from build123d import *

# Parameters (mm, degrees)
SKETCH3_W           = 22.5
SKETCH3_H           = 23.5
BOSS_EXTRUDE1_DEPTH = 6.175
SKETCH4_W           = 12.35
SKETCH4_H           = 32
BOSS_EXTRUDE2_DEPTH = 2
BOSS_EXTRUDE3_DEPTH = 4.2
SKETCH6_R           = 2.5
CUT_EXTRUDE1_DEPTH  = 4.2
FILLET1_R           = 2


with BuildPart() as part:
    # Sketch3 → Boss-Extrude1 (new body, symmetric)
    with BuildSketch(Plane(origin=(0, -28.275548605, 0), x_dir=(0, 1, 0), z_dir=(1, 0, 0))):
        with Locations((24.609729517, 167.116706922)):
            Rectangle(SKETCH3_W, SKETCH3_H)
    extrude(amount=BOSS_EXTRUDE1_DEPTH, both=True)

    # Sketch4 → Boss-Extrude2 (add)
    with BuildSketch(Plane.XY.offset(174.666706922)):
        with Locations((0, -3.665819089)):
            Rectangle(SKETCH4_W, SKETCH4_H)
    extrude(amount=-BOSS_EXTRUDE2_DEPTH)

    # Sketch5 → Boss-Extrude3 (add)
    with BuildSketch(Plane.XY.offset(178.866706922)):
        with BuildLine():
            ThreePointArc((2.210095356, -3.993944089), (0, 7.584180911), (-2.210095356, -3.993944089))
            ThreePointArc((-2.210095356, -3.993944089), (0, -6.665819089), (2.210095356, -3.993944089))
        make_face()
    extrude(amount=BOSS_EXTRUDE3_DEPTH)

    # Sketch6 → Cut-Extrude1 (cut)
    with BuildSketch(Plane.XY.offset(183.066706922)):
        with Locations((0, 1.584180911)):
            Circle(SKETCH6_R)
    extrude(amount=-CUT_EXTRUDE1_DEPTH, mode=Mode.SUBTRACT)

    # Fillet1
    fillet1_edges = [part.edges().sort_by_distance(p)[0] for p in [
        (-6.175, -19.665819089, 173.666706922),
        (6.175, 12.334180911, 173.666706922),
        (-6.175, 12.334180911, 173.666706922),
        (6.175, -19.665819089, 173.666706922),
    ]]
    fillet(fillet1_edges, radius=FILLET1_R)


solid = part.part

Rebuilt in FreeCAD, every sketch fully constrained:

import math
import FreeCAD as App
import Part
import Sketcher
Q = App.Units.Quantity


def edges_at(feature, points):
    """Names of the edges that pass closest to the given points."""
    edges = feature.Shape.Edges
    near = lambda p: min(range(len(edges)), key=lambda i: edges[i].distToShape(Part.Vertex(*p))[0])
    return sorted({f"Edge{near(p) + 1}" for p in points})


def add_polygon(sketch, points):
    """Adds a closed chain of lines whose ends are joined by coincident constraints."""
    first, n = sketch.GeometryCount, len(points)
    for a, b in zip(points, points[1:] + points[:1]):
        sketch.addGeometry(Part.LineSegment(App.Vector(*a, 0), App.Vector(*b, 0)), False)
    for i in range(n):
        sketch.addConstraint(Sketcher.Constraint("Coincident", first + i, 2, first + (i + 1) % n, 1))

doc = App.newDocument("Part")
body = doc.addObject("PartDesign::Body", "Body")

sketch1 = body.newObject("Sketcher::SketchObject", "Sketch")
sketch1.AttachmentSupport = (doc.getObject("YZ_Plane"), [""])
sketch1.MapMode = "FlatFace"
add_polygon(sketch1, [(-14.915819, 178.866707), (-14.915819, 155.366707), (7.584181, 155.366707), (7.584181, 178.866707)])
sketch1.addConstraint(Sketcher.Constraint("Vertical", 0))
sketch1.addConstraint(Sketcher.Constraint("Horizontal", 1))
sketch1.addConstraint(Sketcher.Constraint("Vertical", 2))
sketch1.addConstraint(Sketcher.Constraint("Horizontal", 3))
sketch1.addConstraint(Sketcher.Constraint("DistanceX", 1, 1, 1, 2, Q("22.5 mm")))
sketch1.addConstraint(Sketcher.Constraint("DistanceY", 0, 2, 0, 1, Q("23.5 mm")))
sketch1.addConstraint(Sketcher.Constraint("DistanceX", 0, 2, -1, 1, Q("14.915819 mm")))
sketch1.addConstraint(Sketcher.Constraint("DistanceY", -1, 1, 0, 2, Q("155.366707 mm")))
pad1 = body.newObject("PartDesign::Pad", "Pad")
pad1.Profile = sketch1
pad1.Length = 12.35
pad1.Midplane = True

sketch2 = body.newObject("Sketcher::SketchObject", "Sketch001")
sketch2.AttachmentSupport = (doc.getObject("XY_Plane"), [""])
sketch2.MapMode = "FlatFace"
sketch2.AttachmentOffset = App.Placement(App.Vector(0, 0, 174.666707), App.Rotation())
add_polygon(sketch2, [(-6.175, 12.334181), (-6.175, -19.665819), (6.175, -19.665819), (6.175, 12.334181)])
sketch2.addConstraint(Sketcher.Constraint("Vertical", 0))
sketch2.addConstraint(Sketcher.Constraint("Horizontal", 1))
sketch2.addConstraint(Sketcher.Constraint("Vertical", 2))
sketch2.addConstraint(Sketcher.Constraint("Horizontal", 3))
sketch2.addConstraint(Sketcher.Constraint("DistanceY", 0, 2, 0, 1, Q("32 mm")))
sketch2.addConstraint(Sketcher.Constraint("DistanceX", 1, 1, 1, 2, Q("12.35 mm")))
sketch2.addConstraint(Sketcher.Constraint("DistanceX", 0, 2, -1, 1, Q("6.175 mm")))
sketch2.addConstraint(Sketcher.Constraint("DistanceY", 0, 2, -1, 1, Q("19.665819 mm")))
pad2 = body.newObject("PartDesign::Pad", "Pad001")
pad2.Profile = sketch2
pad2.Length = 2
pad2.Reversed = True

sketch3 = body.newObject("Sketcher::SketchObject", "Sketch002")
sketch3.AttachmentSupport = (doc.getObject("XY_Plane"), [""])
sketch3.MapMode = "FlatFace"
sketch3.AttachmentOffset = App.Placement(App.Vector(0, 0, 178.866707), App.Rotation())
sketch3.addGeometry(Part.ArcOfCircle(Part.Circle(App.Vector(0, 1.584181, 0), App.Vector(0, 0, 1), 6), math.radians(-68.386154), math.radians(248.386154)), False)
sketch3.addGeometry(Part.ArcOfCircle(Part.Circle(App.Vector(0, -4.415819, 0), App.Vector(0, 0, 1), 2.25), math.radians(169.193077), math.radians(370.806923)), False)
sketch3.addConstraint(Sketcher.Constraint("Coincident", 0, 1, 1, 2))
sketch3.addConstraint(Sketcher.Constraint("Coincident", 1, 1, 0, 2))
sketch3.addConstraint(Sketcher.Constraint("Symmetric", 0, 1, 1, 1, -2))
sketch3.addConstraint(Sketcher.Constraint("Radius", 0, Q("6 mm")))
sketch3.addConstraint(Sketcher.Constraint("Radius", 1, Q("2.25 mm")))
sketch3.addConstraint(Sketcher.Constraint("DistanceY", 1, 3, 0, 3, Q("6 mm")))
sketch3.addConstraint(Sketcher.Constraint("DistanceY", -1, 1, 0, 3, Q("1.584181 mm")))
pad3 = body.newObject("PartDesign::Pad", "Pad002")
pad3.Profile = sketch3
pad3.Length = 4.2

sketch4 = body.newObject("Sketcher::SketchObject", "Sketch003")
sketch4.AttachmentSupport = (doc.getObject("XY_Plane"), [""])
sketch4.MapMode = "FlatFace"
sketch4.AttachmentOffset = App.Placement(App.Vector(0, 0, 183.066707), App.Rotation())
sketch4.addGeometry(Part.Circle(App.Vector(0, 1.584181, 0), App.Vector(0, 0, 1), 2.5), False)
sketch4.addConstraint(Sketcher.Constraint("PointOnObject", 0, 3, -2))
sketch4.addConstraint(Sketcher.Constraint("Diameter", 0, Q("5 mm")))
sketch4.addConstraint(Sketcher.Constraint("DistanceY", -1, 1, 0, 3, Q("1.584181 mm")))
pocket1 = body.newObject("PartDesign::Pocket", "Pocket")
pocket1.Profile = sketch4
pocket1.Length = 4.2
doc.recompute()

fillet = body.newObject("PartDesign::Fillet", "Fillet")
fillet.Base = (pocket1, edges_at(pocket1, [
    (-6.175, -19.666, 173.667),
    (6.175, 12.334, 173.667),
    (-6.175, 12.334, 173.667),
    (6.175, -19.666, 173.667),
]))
fillet.Radius = 2

doc.recompute()
